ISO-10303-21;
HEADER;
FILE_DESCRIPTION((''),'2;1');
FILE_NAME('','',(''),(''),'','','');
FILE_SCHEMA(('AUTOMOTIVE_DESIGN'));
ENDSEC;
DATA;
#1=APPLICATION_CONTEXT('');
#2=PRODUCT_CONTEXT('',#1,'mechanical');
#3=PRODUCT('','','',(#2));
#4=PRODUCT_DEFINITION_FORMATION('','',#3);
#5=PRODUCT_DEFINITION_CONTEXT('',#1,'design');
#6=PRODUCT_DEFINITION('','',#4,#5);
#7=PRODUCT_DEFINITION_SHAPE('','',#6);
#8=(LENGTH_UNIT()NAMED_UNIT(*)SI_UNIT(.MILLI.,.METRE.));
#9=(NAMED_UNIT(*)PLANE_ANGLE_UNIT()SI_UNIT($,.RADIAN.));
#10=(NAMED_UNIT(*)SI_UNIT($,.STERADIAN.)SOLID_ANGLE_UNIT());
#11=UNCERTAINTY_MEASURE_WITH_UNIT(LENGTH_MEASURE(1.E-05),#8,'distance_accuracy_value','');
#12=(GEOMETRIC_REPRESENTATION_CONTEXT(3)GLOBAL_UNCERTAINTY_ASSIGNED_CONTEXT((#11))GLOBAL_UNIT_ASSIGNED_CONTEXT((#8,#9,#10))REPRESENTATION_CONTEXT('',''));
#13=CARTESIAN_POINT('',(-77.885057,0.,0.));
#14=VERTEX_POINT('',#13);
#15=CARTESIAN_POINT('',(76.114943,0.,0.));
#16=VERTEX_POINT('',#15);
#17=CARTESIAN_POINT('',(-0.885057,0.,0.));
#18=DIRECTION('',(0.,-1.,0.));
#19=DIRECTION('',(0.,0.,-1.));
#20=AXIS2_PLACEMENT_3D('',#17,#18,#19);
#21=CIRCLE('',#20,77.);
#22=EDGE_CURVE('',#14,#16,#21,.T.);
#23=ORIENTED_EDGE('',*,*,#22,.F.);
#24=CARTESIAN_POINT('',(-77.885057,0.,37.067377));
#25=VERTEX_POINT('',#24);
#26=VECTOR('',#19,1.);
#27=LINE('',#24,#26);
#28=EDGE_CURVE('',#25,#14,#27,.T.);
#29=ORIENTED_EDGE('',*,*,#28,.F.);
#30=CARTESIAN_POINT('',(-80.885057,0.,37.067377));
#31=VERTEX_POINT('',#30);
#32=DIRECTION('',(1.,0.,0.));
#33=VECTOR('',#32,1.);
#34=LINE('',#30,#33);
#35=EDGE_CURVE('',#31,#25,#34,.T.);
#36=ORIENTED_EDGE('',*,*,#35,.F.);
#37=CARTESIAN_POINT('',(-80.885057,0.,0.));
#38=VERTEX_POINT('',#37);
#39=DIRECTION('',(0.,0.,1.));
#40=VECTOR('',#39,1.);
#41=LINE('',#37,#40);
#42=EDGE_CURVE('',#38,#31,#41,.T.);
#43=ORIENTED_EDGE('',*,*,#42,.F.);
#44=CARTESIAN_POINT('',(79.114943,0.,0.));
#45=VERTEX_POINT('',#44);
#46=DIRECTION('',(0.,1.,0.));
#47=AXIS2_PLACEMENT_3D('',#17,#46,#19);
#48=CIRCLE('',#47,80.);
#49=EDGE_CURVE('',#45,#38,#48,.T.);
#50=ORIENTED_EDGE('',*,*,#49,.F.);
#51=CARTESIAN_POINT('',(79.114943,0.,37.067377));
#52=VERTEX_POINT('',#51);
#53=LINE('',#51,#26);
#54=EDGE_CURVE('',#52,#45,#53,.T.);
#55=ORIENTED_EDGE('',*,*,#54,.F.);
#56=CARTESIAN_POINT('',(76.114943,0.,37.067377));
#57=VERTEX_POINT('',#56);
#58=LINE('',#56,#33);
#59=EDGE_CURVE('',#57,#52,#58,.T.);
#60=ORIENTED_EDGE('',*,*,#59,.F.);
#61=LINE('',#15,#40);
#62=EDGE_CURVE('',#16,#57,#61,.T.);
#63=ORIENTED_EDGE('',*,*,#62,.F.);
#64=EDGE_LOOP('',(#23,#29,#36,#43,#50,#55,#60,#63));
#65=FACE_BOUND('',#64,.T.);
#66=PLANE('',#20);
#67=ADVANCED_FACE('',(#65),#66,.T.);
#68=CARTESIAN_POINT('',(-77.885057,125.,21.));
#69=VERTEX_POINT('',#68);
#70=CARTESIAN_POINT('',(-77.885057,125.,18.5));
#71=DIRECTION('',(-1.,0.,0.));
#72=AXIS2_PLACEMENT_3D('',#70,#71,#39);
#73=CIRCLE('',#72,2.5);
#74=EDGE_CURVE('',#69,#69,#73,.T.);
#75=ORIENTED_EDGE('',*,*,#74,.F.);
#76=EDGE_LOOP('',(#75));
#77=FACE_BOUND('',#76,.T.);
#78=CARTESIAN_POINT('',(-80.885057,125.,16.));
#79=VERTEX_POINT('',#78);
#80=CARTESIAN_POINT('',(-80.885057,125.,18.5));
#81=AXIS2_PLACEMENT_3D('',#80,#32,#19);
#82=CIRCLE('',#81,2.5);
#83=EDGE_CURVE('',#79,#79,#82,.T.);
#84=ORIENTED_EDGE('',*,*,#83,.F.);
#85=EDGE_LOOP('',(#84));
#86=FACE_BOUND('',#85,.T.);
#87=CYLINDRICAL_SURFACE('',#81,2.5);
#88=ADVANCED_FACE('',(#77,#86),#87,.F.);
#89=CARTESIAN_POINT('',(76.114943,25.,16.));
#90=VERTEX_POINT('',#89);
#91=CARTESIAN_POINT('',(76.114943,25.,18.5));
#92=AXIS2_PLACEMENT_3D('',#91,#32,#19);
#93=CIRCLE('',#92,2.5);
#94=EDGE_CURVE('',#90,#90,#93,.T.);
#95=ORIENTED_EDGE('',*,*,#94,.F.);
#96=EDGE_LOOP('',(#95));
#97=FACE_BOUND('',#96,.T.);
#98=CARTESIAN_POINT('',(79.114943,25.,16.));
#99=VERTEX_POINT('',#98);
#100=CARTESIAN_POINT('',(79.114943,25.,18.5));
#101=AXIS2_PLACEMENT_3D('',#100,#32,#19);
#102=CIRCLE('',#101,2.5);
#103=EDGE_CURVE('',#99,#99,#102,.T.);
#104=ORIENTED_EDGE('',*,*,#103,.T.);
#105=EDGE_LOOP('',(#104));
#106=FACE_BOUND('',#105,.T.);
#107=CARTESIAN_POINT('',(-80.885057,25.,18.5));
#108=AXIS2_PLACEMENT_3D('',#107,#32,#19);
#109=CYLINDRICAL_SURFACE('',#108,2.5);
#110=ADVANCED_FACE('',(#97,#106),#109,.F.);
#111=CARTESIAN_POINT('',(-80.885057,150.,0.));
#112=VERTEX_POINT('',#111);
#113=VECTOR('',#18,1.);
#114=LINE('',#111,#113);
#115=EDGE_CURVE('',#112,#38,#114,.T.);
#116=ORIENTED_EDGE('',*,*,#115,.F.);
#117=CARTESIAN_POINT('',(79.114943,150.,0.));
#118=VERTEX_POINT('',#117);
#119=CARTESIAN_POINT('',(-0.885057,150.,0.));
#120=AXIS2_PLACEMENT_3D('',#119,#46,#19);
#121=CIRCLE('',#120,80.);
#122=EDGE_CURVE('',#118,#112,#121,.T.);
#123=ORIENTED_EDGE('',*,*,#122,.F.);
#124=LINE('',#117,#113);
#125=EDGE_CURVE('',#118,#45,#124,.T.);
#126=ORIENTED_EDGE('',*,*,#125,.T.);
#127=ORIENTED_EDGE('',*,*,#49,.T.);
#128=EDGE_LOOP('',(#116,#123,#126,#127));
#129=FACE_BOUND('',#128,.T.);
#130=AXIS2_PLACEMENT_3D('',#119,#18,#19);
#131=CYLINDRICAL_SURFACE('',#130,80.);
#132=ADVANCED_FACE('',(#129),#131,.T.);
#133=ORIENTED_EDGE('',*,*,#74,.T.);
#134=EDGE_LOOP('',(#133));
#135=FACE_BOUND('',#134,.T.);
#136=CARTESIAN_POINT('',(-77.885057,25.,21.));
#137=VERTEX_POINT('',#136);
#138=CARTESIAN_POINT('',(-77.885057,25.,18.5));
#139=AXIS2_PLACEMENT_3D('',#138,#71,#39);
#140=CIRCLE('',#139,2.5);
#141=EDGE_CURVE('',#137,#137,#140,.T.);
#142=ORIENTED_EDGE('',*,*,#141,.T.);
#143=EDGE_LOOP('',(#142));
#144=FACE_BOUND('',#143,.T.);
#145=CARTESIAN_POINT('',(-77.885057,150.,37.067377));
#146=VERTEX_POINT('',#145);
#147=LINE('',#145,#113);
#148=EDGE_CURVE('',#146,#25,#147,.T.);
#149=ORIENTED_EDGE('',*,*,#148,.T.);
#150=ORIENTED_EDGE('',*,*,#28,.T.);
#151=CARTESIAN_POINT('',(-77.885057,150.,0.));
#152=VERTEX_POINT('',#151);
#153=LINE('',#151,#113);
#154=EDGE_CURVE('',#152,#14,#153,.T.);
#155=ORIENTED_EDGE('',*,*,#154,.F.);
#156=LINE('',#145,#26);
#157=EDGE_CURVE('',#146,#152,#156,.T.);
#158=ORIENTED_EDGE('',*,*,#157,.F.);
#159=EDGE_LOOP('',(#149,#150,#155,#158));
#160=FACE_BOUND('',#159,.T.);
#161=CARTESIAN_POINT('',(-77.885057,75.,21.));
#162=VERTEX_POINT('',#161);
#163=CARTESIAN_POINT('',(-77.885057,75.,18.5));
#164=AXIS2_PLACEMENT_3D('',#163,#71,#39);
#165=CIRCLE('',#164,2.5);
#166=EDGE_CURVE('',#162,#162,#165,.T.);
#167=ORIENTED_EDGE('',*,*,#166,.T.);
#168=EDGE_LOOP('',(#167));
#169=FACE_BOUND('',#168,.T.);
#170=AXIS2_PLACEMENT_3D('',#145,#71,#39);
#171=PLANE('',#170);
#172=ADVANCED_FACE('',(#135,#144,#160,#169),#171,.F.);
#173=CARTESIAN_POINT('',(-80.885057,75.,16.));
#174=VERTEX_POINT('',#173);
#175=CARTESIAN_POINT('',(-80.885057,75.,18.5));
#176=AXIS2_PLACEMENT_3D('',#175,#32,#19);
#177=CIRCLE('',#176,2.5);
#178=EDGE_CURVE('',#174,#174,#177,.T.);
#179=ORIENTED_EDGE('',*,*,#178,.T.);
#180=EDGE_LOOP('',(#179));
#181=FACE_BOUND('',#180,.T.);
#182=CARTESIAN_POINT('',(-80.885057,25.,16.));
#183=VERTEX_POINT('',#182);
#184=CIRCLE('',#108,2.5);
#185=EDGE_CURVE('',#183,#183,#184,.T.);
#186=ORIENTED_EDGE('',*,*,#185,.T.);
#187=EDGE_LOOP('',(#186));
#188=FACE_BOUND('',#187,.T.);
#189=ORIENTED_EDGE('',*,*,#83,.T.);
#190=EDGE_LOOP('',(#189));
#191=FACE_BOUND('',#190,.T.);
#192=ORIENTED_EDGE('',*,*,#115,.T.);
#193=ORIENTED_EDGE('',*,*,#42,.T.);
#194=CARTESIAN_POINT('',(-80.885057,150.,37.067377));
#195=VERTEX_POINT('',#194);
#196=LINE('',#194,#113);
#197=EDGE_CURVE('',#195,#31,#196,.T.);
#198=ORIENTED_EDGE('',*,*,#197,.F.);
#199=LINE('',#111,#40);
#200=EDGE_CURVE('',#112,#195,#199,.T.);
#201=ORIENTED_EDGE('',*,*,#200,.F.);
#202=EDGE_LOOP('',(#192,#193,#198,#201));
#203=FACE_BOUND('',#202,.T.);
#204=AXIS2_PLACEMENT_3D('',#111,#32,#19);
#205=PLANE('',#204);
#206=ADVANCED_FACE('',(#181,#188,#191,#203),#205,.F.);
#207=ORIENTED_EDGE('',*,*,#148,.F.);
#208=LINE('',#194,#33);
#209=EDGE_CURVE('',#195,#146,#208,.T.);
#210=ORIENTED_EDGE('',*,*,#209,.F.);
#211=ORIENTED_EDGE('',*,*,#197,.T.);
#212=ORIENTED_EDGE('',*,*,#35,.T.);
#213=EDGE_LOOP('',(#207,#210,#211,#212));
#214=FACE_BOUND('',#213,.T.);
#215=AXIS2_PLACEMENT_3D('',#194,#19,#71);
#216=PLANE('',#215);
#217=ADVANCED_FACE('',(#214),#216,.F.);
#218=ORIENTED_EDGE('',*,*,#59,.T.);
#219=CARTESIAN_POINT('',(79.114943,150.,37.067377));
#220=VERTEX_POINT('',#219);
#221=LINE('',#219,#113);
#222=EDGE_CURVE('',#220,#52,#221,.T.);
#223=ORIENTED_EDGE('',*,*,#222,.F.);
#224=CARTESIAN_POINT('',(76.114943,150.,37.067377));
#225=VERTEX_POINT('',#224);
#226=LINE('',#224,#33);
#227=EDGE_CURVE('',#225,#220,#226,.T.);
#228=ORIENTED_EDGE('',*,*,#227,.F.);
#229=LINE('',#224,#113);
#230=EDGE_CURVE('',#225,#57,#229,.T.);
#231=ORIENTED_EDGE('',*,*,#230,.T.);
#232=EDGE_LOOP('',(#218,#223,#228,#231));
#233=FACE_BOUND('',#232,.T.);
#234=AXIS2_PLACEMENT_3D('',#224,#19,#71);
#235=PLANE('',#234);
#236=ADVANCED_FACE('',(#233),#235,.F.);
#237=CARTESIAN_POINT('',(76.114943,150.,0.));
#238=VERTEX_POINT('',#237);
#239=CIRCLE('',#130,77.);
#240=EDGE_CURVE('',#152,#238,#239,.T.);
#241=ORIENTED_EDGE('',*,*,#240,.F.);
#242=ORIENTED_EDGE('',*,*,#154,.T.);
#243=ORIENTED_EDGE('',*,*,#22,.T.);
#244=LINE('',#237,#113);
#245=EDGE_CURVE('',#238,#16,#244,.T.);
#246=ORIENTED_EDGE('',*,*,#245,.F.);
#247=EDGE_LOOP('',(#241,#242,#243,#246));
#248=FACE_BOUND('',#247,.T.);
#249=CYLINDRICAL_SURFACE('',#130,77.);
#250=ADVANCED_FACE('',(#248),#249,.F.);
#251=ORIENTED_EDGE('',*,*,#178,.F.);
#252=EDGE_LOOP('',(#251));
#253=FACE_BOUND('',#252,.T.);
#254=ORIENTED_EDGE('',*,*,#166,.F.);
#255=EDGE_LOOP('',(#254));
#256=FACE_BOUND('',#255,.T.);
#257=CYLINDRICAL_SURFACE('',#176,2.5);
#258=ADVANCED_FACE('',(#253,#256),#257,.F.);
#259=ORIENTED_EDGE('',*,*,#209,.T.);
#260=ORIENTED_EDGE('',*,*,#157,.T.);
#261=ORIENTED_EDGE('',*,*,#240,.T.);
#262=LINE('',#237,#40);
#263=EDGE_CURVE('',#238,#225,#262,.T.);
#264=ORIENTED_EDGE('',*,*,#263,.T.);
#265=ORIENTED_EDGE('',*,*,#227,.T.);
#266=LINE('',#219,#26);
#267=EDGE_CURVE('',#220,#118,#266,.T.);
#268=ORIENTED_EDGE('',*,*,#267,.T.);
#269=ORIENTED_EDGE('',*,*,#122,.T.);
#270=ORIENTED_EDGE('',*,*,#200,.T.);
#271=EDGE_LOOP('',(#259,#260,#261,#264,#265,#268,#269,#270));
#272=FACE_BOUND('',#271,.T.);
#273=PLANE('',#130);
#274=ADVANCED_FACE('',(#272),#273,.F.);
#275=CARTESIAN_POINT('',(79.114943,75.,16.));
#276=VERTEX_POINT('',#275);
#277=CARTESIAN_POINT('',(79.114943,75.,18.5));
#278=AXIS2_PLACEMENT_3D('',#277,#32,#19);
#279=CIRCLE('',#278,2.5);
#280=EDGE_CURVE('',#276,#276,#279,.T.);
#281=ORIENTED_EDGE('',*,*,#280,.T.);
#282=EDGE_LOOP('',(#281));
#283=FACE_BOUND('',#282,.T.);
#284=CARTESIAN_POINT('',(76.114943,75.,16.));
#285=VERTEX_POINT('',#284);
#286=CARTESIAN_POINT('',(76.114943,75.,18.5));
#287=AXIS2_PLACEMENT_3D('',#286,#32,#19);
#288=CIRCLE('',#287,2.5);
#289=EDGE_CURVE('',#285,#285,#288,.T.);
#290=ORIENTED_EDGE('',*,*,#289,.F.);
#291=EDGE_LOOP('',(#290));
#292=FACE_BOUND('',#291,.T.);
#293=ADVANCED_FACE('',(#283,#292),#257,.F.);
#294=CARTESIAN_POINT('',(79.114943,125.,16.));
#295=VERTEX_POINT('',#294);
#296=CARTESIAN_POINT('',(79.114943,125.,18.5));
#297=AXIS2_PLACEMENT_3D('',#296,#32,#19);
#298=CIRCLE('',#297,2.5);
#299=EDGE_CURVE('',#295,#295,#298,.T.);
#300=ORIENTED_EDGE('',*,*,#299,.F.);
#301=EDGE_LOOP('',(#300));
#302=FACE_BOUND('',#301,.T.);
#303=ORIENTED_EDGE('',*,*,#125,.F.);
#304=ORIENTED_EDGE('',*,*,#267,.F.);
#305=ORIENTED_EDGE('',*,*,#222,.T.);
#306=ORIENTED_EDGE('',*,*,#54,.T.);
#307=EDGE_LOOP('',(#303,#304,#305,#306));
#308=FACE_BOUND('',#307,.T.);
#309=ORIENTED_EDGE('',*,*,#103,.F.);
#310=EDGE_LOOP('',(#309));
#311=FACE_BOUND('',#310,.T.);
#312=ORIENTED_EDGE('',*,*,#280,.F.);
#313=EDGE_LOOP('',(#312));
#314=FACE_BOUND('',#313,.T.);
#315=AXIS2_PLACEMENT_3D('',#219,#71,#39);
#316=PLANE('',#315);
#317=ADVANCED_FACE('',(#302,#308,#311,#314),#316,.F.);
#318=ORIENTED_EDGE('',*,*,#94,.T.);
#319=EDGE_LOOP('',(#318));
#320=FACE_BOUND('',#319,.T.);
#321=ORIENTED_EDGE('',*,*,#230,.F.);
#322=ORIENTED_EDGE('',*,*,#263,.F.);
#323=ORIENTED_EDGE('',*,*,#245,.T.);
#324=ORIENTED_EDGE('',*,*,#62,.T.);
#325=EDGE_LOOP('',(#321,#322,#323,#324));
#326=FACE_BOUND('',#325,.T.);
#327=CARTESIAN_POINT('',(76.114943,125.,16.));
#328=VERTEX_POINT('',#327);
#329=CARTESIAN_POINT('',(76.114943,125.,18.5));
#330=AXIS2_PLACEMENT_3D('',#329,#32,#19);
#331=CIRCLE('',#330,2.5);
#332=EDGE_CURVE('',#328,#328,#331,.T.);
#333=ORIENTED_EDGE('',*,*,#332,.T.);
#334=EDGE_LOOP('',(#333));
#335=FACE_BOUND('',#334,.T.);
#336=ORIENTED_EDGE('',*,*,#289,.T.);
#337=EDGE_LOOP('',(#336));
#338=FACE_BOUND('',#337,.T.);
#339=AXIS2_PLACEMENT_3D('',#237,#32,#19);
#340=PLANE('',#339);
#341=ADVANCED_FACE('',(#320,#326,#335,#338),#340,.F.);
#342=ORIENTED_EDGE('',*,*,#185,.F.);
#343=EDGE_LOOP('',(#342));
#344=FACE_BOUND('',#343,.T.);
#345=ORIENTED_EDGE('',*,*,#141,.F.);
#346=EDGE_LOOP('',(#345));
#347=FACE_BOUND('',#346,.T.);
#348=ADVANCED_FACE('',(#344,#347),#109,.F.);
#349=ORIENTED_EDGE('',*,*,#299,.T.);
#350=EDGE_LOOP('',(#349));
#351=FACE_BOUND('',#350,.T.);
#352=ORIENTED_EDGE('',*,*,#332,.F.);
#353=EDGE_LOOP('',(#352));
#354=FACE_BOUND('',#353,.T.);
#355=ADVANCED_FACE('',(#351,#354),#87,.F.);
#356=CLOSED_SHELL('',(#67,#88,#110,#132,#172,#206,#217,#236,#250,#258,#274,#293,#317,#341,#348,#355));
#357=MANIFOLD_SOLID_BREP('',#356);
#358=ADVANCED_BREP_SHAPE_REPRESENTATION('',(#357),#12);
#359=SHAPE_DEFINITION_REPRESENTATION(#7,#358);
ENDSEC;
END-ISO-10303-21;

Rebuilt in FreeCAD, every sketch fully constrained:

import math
import FreeCAD as App
import Part
import Sketcher
from FreeCAD import Vector
Q = App.Units.Quantity

doc = App.newDocument("Part")
body = doc.addObject("PartDesign::Body", "Body")

# Sketch on XZ plane
sketch1 = doc.addObject("Sketcher::SketchObject", "Sketch")
body.addObject(sketch1)
sketch1.AttachmentSupport = (doc.XZ_Plane, [""])
sketch1.MapMode = "FlatFace"
sketch1.addGeometry([
    Part.LineSegment(Vector(-80.9, 0, 0), Vector(-80.9, 37.1, 0)),  # 0
    Part.LineSegment(Vector(-80.9, 37.1, 0), Vector(-77.9, 37.1, 0)),  # 1
    Part.LineSegment(Vector(-77.9, 37.1, 0), Vector(-77.9, 0, 0)),  # 2
    Part.ArcOfCircle(Part.Circle(Vector(-0.9, 0, 0), Vector(0, 0, 1), 77), math.radians(180), math.radians(360)),  # 3
    Part.LineSegment(Vector(76.1, 0, 0), Vector(76.1, 37.1, 0)),  # 4
    Part.LineSegment(Vector(76.1, 37.1, 0), Vector(79.1, 37.1, 0)),  # 5
    Part.LineSegment(Vector(79.1, 37.1, 0), Vector(79.1, 0, 0)),  # 6
    Part.ArcOfCircle(Part.Circle(Vector(-0.9, 0, 0), Vector(0, 0, 1), 80), math.radians(180), math.radians(360)),  # 7
], False)
sketch1.addConstraint([
    Sketcher.Constraint("Coincident", 0, 2, 1, 1),
    Sketcher.Constraint("Coincident", 1, 2, 2, 1),
    Sketcher.Constraint("Tangent", 2, 2, 3, 1),
    Sketcher.Constraint("Tangent", 3, 2, 4, 1),
    Sketcher.Constraint("Coincident", 4, 2, 5, 1),
    Sketcher.Constraint("Coincident", 5, 2, 6, 1),
    Sketcher.Constraint("Tangent", 6, 2, 7, 2),
    Sketcher.Constraint("Tangent", 7, 1, 0, 1),
    Sketcher.Constraint("Vertical", 0),
    Sketcher.Constraint("Horizontal", 1),
    Sketcher.Constraint("Vertical", 2),
    Sketcher.Constraint("Vertical", 4),
    Sketcher.Constraint("Horizontal", 5),
    Sketcher.Constraint("Vertical", 6),
    Sketcher.Constraint("Coincident", 7, 3, 3, 3),
    Sketcher.Constraint("PointOnObject", 3, 3, -1),
    Sketcher.Constraint("Horizontal", 1, 2, 4, 2),
    Sketcher.Constraint("Radius", 3, Q("77 mm")),
    Sketcher.Constraint("Radius", 7, Q("80 mm")),
    Sketcher.Constraint("DistanceY", 0, 1, 0, 2, Q("37.067377 mm")),
    Sketcher.Constraint("DistanceX", 3, 3, -1, 1, Q("0.885057 mm")),
])
pad1 = doc.addObject("PartDesign::Pad", "Pad")
body.addObject(pad1)
pad1.Profile = sketch1
pad1.Length = 150
pad1.Reversed = True

# Sketch on YZ plane
sketch2 = doc.addObject("Sketcher::SketchObject", "Sketch001")
body.addObject(sketch2)
sketch2.AttachmentSupport = (doc.YZ_Plane, [""])
sketch2.MapMode = "FlatFace"
sketch2.AttachmentOffset = App.Placement(Vector(0, 0, 79.114943), App.Rotation())
sketch2.addGeometry([
    Part.Circle(Vector(125, 18.5, 0), Vector(0, 0, 1), 2.5),
    Part.Circle(Vector(75, 18.5, 0), Vector(0, 0, 1), 2.5),
    Part.Circle(Vector(25, 18.5, 0), Vector(0, 0, 1), 2.5),
], False)
sketch2.addConstraint([
    Sketcher.Constraint("Equal", 0, 1),
    Sketcher.Constraint("Equal", 1, 2),
    Sketcher.Constraint("Horizontal", 0, 3, 1, 3),
    Sketcher.Constraint("Horizontal", 1, 3, 2, 3),
    Sketcher.Constraint("Diameter", 0, Q("5 mm")),
    Sketcher.Constraint("DistanceX", -1, 1, 0, 3, Q("125 mm")),
    Sketcher.Constraint("DistanceX", -1, 1, 1, 3, Q("75 mm")),
    Sketcher.Constraint("DistanceX", -1, 1, 2, 3, Q("25 mm")),
    Sketcher.Constraint("DistanceY", -1, 1, 0, 3, Q("18.5 mm")),
])
pocket1 = doc.addObject("PartDesign::Pocket", "Pocket")
body.addObject(pocket1)
pocket1.Profile = sketch2
pocket1.Type = "ThroughAll"

doc.recompute()
